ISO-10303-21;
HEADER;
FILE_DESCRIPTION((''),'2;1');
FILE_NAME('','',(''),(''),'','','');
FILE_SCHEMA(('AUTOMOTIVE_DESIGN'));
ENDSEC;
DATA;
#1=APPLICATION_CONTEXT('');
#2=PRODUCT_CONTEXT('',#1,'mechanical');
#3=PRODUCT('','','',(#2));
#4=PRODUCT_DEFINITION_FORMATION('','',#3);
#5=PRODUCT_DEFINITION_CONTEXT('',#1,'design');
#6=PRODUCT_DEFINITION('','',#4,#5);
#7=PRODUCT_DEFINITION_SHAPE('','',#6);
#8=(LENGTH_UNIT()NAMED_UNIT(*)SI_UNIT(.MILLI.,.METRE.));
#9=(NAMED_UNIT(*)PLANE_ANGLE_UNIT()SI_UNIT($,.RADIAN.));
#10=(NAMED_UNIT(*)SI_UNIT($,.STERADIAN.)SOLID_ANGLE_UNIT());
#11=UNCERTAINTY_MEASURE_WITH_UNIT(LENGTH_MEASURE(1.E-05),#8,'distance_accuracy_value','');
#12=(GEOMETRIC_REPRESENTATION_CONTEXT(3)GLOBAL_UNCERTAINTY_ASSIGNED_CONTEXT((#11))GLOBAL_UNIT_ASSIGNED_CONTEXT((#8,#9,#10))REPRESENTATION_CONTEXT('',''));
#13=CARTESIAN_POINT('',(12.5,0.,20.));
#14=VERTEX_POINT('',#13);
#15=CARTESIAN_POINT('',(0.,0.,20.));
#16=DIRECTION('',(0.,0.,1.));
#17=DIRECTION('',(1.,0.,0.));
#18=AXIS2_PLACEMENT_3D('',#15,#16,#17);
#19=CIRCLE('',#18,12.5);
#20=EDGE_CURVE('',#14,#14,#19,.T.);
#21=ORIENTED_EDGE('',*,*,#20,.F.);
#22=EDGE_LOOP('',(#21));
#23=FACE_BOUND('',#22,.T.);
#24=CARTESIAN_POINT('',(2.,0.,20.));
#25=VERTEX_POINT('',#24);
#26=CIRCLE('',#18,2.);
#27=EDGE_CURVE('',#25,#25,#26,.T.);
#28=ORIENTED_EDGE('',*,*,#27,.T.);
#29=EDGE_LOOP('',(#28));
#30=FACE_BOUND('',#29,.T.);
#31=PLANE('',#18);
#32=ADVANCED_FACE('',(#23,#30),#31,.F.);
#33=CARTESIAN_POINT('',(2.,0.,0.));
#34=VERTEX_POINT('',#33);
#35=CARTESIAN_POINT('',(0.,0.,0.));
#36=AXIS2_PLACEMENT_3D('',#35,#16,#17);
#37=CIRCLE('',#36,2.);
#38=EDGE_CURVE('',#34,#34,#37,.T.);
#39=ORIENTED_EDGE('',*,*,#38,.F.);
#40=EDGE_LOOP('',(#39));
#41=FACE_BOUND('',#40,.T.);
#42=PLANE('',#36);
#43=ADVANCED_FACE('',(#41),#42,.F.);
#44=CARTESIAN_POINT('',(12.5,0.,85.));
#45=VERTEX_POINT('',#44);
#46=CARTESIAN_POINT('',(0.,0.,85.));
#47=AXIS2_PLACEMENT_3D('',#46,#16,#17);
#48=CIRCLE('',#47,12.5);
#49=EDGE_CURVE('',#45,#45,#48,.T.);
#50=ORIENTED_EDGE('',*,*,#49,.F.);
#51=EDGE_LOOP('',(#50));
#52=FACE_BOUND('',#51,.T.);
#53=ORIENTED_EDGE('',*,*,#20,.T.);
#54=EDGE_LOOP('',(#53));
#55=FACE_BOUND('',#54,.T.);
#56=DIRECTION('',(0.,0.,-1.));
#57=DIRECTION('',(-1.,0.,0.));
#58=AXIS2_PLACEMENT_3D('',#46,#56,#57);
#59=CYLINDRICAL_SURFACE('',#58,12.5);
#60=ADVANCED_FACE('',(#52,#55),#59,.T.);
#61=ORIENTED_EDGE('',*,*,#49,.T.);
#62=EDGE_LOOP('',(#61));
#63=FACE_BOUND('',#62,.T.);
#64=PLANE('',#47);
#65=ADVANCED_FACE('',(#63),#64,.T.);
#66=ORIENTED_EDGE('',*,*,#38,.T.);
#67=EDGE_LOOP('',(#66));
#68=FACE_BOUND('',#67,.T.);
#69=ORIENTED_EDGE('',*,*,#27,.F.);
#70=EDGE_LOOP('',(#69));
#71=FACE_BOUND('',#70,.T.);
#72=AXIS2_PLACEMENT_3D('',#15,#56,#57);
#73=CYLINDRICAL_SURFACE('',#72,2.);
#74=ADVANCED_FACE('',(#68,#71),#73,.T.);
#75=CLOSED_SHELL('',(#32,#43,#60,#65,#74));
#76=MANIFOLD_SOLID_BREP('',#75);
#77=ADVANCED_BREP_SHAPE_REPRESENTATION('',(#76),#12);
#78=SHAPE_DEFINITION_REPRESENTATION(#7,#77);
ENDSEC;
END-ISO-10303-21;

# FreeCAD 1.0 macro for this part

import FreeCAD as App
import Part
import Sketcher

V = App.Vector

doc = App.newDocument("Part")
params = doc.addObject("Spreadsheet::Sheet", "Params")
for row, (alias, value) in enumerate([
    ("sketch1_diameter", "4 mm"),
    ("pad1_length", "20 mm"),
    ("sketch2_diameter", "25 mm"),
    ("pad2_length", "65 mm"),
], start=1):
    params.set(f"A{row}", alias)
    params.set(f"B{row}", "=" + value)
    params.setAlias(f"B{row}", alias)

body = doc.addObject("PartDesign::Body", "Body")

# Sketch on XY plane
sketch1 = body.newObject("Sketcher::SketchObject", "Sketch")
sketch1.AttachmentSupport = (doc.getObject("XY_Plane"), [""])
sketch1.MapMode = "FlatFace"
sketch1.addGeometry(Part.Circle(V(0, 0, 0), V(0, 0, 1), 2), False)
sketch1.addConstraint(Sketcher.Constraint("Coincident", 0, 3, -1, 1))
sketch1.addConstraint(Sketcher.Constraint("Diameter", 0, 4.0))
sketch1.setExpression("Constraints[1]", "Params.sketch1_diameter")
pad1 = body.newObject("PartDesign::Pad", "Pad")
pad1.Profile = sketch1
pad1.setExpression("Length", "Params.pad1_length")

# Sketch on XY plane
sketch2 = body.newObject("Sketcher::SketchObject", "Sketch001")
sketch2.AttachmentSupport = (doc.getObject("XY_Plane"), [""])
sketch2.MapMode = "FlatFace"
sketch2.AttachmentOffset = App.Placement(V(0, 0, 20), App.Rotation())
sketch2.addGeometry(Part.Circle(V(0, 0, 0), V(0, 0, 1), 12), False)
sketch2.addConstraint(Sketcher.Constraint("Coincident", 0, 3, -1, 1))
sketch2.addConstraint(Sketcher.Constraint("Diameter", 0, 25.0))
sketch2.setExpression("Constraints[1]", "Params.sketch2_diameter")
pad2 = body.newObject("PartDesign::Pad", "Pad001")
pad2.Profile = sketch2
pad2.setExpression("Length", "Params.pad2_length")

doc.recompute()
